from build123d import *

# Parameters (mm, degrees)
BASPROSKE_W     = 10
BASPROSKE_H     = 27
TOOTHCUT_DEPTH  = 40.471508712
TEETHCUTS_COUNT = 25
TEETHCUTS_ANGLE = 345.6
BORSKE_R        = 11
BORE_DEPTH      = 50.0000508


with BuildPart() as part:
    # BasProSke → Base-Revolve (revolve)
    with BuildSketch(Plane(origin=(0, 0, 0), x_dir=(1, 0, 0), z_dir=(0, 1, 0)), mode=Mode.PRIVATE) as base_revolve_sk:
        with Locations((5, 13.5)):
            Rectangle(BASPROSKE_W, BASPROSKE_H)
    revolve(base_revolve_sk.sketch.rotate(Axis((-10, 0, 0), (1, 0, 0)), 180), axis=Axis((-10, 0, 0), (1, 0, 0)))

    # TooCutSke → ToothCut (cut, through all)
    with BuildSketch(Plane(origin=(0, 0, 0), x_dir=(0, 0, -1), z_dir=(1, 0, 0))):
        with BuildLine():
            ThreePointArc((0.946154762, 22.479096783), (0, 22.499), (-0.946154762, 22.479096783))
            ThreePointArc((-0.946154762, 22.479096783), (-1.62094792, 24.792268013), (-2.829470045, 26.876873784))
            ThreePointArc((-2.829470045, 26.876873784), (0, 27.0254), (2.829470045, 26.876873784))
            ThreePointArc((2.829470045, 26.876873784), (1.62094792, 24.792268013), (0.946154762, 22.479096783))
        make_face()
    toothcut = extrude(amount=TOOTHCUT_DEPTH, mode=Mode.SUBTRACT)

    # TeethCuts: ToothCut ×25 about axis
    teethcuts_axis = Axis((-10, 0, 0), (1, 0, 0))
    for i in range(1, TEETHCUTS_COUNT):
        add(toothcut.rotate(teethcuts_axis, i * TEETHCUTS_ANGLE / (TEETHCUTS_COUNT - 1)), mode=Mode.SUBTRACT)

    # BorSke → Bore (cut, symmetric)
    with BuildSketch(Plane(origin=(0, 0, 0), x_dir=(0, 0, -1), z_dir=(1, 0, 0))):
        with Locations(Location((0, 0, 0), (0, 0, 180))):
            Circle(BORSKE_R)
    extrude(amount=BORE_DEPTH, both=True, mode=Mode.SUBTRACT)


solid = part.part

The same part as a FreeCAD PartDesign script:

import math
import FreeCAD as App
import Part
import Sketcher

V = App.Vector

doc = App.newDocument("Part")
body = doc.addObject("PartDesign::Body", "Body")

sketch1 = body.newObject("Sketcher::SketchObject", "Sketch")
sketch1.AttachmentSupport = (doc.getObject("XZ_Plane"), [""])
sketch1.MapMode = "FlatFace"
sketch1.addGeometry([
    Part.LineSegment(V(0, -27, 0), V(0, 0, 0)),
    Part.LineSegment(V(0, 0, 0), V(10, 0, 0)),
    Part.LineSegment(V(10, 0, 0), V(10, -27, 0)),
    Part.LineSegment(V(10, -27, 0), V(0, -27, 0)),
], False)
sketch1.addConstraint([
    Sketcher.Constraint("Coincident", 0, 2, 1, 1),
    Sketcher.Constraint("Coincident", 1, 2, 2, 1),
    Sketcher.Constraint("Coincident", 2, 2, 3, 1),
    Sketcher.Constraint("Coincident", 3, 2, 0, 1),
    Sketcher.Constraint("Vertical", 0),
    Sketcher.Constraint("Horizontal", 1),
    Sketcher.Constraint("Vertical", 2),
    Sketcher.Constraint("Horizontal", 3),
    Sketcher.Constraint("Coincident", 0, 2, -1, 1),
    Sketcher.Constraint("DistanceX", 1, 1, 1, 2, 10.0),
    Sketcher.Constraint("DistanceY", 0, 1, 0, 2, 27.0),
])
revolution = body.newObject("PartDesign::Revolution", "Revolution")
revolution.Profile = sketch1
revolution.ReferenceAxis = (sketch1, ["H_Axis"])
revolution.Angle = 360

sketch2 = body.newObject("Sketcher::SketchObject", "Sketch001")
sketch2.AttachmentSupport = (doc.getObject("YZ_Plane"), [""])
sketch2.MapMode = "FlatFace"
sketch2.addGeometry([
    Part.ArcOfCircle(Part.Circle(V(0, 0, 0), V(0, 0, 1), 22.5), math.radians(-2.41), math.radians(2.41)),
    Part.ArcOfCircle(Part.Circle(V(20.9, -10.8, 0), V(0, 0, 1), 10), math.radians(53), math.radians(81)),
    Part.ArcOfCircle(Part.Circle(V(0, 0, 0), V(0, 0, 1), 27), math.radians(-6.01), math.radians(6.01)),
    Part.ArcOfCircle(Part.Circle(V(20.9, 10.8, 0), V(0, 0, 1), 10), math.radians(-81), math.radians(-53)),
], False)
sketch2.addConstraint([
    Sketcher.Constraint("Coincident", 0, 1, 1, 2),
    Sketcher.Constraint("Coincident", 1, 1, 2, 1),
    Sketcher.Constraint("Coincident", 2, 2, 3, 2),
    Sketcher.Constraint("Coincident", 3, 1, 0, 2),
    Sketcher.Constraint("Coincident", 0, 3, -1, 1),
    Sketcher.Constraint("Coincident", 2, 3, -1, 1),
    Sketcher.Constraint("Equal", 1, 3),
    Sketcher.Constraint("Symmetric", 1, 3, 3, 3, -1),
    Sketcher.Constraint("Radius", 1, 10.0),
    Sketcher.Constraint("Radius", 0, 22.499),
    Sketcher.Constraint("Radius", 2, 27.0254),
    Sketcher.Constraint("DistanceX", -1, 1, 1, 3, 20.855629),
    Sketcher.Constraint("DistanceY", 1, 1, -1, 1, 2.82947),
])
pocket1 = body.newObject("PartDesign::Pocket", "Pocket")
pocket1.Profile = sketch2
pocket1.Type = "ThroughAll"
pocket1.Reversed = True
doc.recompute()

polarpattern = body.newObject("PartDesign::PolarPattern", "PolarPattern")
polarpattern.Originals = [pocket1]
polarpattern.Axis = (doc.getObject("X_Axis"), [""])
polarpattern.Angle = 360
polarpattern.Occurrences = 25
body.Tip = polarpattern

sketch3 = body.newObject("Sketcher::SketchObject", "Sketch002")
sketch3.AttachmentSupport = (doc.getObject("YZ_Plane"), [""])
sketch3.MapMode = "FlatFace"
sketch3.addGeometry(Part.Circle(V(0, 0, 0), V(0, 0, 1), 11), False)
sketch3.addConstraint([
    Sketcher.Constraint("Coincident", 0, 3, -1, 1),
    Sketcher.Constraint("Diameter", 0, 22.0),
])
pocket2 = body.newObject("PartDesign::Pocket", "Pocket001")
pocket2.Profile = sketch3
pocket2.Length = 100.000102
pocket2.Midplane = True

doc.recompute()
